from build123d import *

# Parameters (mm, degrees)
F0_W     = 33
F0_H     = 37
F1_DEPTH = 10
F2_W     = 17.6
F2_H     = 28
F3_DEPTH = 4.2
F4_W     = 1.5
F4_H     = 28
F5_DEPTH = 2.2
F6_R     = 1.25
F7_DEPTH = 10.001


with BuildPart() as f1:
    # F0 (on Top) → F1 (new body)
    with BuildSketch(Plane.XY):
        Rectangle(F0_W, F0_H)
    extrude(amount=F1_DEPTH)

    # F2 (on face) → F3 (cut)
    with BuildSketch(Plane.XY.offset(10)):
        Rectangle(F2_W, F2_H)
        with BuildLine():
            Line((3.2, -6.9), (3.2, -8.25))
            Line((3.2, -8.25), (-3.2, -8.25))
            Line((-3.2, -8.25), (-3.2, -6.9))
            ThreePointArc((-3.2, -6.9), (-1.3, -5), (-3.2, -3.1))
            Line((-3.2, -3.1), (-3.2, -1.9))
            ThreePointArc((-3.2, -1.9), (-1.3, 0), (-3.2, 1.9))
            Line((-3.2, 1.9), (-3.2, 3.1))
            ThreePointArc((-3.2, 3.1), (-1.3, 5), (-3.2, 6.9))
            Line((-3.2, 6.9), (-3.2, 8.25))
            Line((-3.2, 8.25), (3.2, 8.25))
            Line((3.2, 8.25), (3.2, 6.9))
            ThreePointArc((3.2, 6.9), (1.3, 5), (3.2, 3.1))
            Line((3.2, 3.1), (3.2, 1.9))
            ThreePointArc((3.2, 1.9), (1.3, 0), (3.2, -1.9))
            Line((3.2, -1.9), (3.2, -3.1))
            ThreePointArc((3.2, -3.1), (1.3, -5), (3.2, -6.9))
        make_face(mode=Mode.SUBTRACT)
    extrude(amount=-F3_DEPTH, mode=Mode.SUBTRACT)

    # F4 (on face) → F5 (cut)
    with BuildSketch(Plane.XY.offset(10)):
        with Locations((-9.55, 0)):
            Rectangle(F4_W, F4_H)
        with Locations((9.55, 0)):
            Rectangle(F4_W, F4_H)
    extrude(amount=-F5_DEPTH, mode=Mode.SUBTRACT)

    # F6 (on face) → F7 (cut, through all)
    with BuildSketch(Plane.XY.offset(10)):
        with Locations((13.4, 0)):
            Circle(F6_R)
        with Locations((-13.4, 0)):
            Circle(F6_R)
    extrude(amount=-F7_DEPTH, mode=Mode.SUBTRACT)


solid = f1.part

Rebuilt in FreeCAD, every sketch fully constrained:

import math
import FreeCAD as App
import Part
import Sketcher
from FreeCAD import Vector


def add_polygon(sketch, points):
    """Adds a closed chain of lines whose ends are joined by coincident constraints."""
    first, n = sketch.GeometryCount, len(points)
    for a, b in zip(points, points[1:] + points[:1]):
        sketch.addGeometry(Part.LineSegment(App.Vector(*a, 0), App.Vector(*b, 0)), False)
    for i in range(n):
        sketch.addConstraint(Sketcher.Constraint("Coincident", first + i, 2, first + (i + 1) % n, 1))

doc = App.newDocument("Part")
body = doc.addObject("PartDesign::Body", "Body")

# Sketch on XY plane
sketch1 = body.newObject("Sketcher::SketchObject", "Sketch")
sketch1.AttachmentSupport = (doc.getObject("XY_Plane"), [""])
sketch1.MapMode = "FlatFace"
add_polygon(sketch1, [(-16, 18), (-16, -18), (16, -18), (16, 18)])  # lines 0-3
sketch1.addConstraint([
    Sketcher.Constraint("Vertical", 0),
    Sketcher.Constraint("Horizontal", 1),
    Sketcher.Constraint("Vertical", 2),
    Sketcher.Constraint("Horizontal", 3),
    Sketcher.Constraint("Symmetric", 0, 2, 2, 2, -1, 1),
    Sketcher.Constraint("DistanceX", 1, 1, 1, 2, 33.0),
    Sketcher.Constraint("DistanceY", 0, 2, 0, 1, 37.0),
])
pad1 = body.newObject("PartDesign::Pad", "Pad")
pad1.Profile = sketch1
pad1.Length = 10

# Sketch on XY plane
sketch2 = body.newObject("Sketcher::SketchObject", "Sketch001")
sketch2.AttachmentSupport = (doc.getObject("XY_Plane"), [""])
sketch2.MapMode = "FlatFace"
sketch2.AttachmentOffset = App.Placement(Vector(0, 0, 10), App.Rotation())
add_polygon(sketch2, [(-8.8, 14), (-8.8, -14), (8.8, -14), (8.8, 14)])  # lines 0-3
sketch2.addGeometry(Part.ArcOfCircle(Part.Circle(Vector(3.2, -5, 0), Vector(0, 0, 1), 1.9), math.radians(90), math.radians(270)), False)  # 4
sketch2.addGeometry(Part.LineSegment(Vector(3.2, -6.9, 0), Vector(3.2, -8.2, 0)), False)  # 5
sketch2.addGeometry(Part.LineSegment(Vector(3.2, -8.2, 0), Vector(-3.2, -8.2, 0)), False)  # 6
sketch2.addGeometry(Part.LineSegment(Vector(-3.2, -8.2, 0), Vector(-3.2, -6.9, 0)), False)  # 7
sketch2.addGeometry(Part.ArcOfCircle(Part.Circle(Vector(-3.2, -5, 0), Vector(0, 0, 1), 1.9), math.radians(-90), math.radians(90)), False)  # 8
sketch2.addGeometry(Part.LineSegment(Vector(-3.2, -3.1, 0), Vector(-3.2, -1.9, 0)), False)  # 9
sketch2.addGeometry(Part.ArcOfCircle(Part.Circle(Vector(-3.2, 0, 0), Vector(0, 0, 1), 1.9), math.radians(-90), math.radians(90)), False)  # 10
sketch2.addGeometry(Part.LineSegment(Vector(-3.2, 1.9, 0), Vector(-3.2, 3.1, 0)), False)  # 11
sketch2.addGeometry(Part.ArcOfCircle(Part.Circle(Vector(-3.2, 5, 0), Vector(0, 0, 1), 1.9), math.radians(-90), math.radians(90)), False)  # 12
sketch2.addGeometry(Part.LineSegment(Vector(-3.2, 6.9, 0), Vector(-3.2, 8.2, 0)), False)  # 13
sketch2.addGeometry(Part.LineSegment(Vector(-3.2, 8.2, 0), Vector(3.2, 8.2, 0)), False)  # 14
sketch2.addGeometry(Part.LineSegment(Vector(3.2, 8.2, 0), Vector(3.2, 6.9, 0)), False)  # 15
sketch2.addGeometry(Part.ArcOfCircle(Part.Circle(Vector(3.2, 5, 0), Vector(0, 0, 1), 1.9), math.radians(90), math.radians(270)), False)  # 16
sketch2.addGeometry(Part.LineSegment(Vector(3.2, 3.1, 0), Vector(3.2, 1.9, 0)), False)  # 17
sketch2.addGeometry(Part.ArcOfCircle(Part.Circle(Vector(3.2, 0, 0), Vector(0, 0, 1), 1.9), math.radians(90), math.radians(270)), False)  # 18
sketch2.addGeometry(Part.LineSegment(Vector(3.2, -1.9, 0), Vector(3.2, -3.1, 0)), False)  # 19
sketch2.addConstraint([
    Sketcher.Constraint("Coincident", 4, 2, 5, 1),
    Sketcher.Constraint("Coincident", 5, 2, 6, 1),
    Sketcher.Constraint("Coincident", 6, 2, 7, 1),
    Sketcher.Constraint("Coincident", 7, 2, 8, 1),
    Sketcher.Constraint("Coincident", 8, 2, 9, 1),
    Sketcher.Constraint("Coincident", 9, 2, 10, 1),
    Sketcher.Constraint("Coincident", 10, 2, 11, 1),
    Sketcher.Constraint("Coincident", 11, 2, 12, 1),
    Sketcher.Constraint("Coincident", 12, 2, 13, 1),
    Sketcher.Constraint("Coincident", 13, 2, 14, 1),
    Sketcher.Constraint("Coincident", 14, 2, 15, 1),
    Sketcher.Constraint("Coincident", 15, 2, 16, 1),
    Sketcher.Constraint("Coincident", 16, 2, 17, 1),
    Sketcher.Constraint("Coincident", 17, 2, 18, 1),
    Sketcher.Constraint("Coincident", 18, 2, 19, 1),
    Sketcher.Constraint("Coincident", 19, 2, 4, 1),
    Sketcher.Constraint("Vertical", 0),
    Sketcher.Constraint("Horizontal", 1),
    Sketcher.Constraint("Vertical", 2),
    Sketcher.Constraint("Horizontal", 3),
    Sketcher.Constraint("Vertical", 5),
    Sketcher.Constraint("Horizontal", 6),
    Sketcher.Constraint("Vertical", 7),
    Sketcher.Constraint("Vertical", 9),
    Sketcher.Constraint("Vertical", 11),
    Sketcher.Constraint("Vertical", 13),
    Sketcher.Constraint("Horizontal", 14),
    Sketcher.Constraint("Vertical", 15),
    Sketcher.Constraint("Vertical", 17),
    Sketcher.Constraint("Vertical", 19),
    Sketcher.Constraint("Equal", 4, 8),
    Sketcher.Constraint("Equal", 8, 10),
    Sketcher.Constraint("Equal", 10, 12),
    Sketcher.Constraint("Equal", 12, 16),
    Sketcher.Constraint("Equal", 16, 18),
    Sketcher.Constraint("Symmetric", 4, 3, 12, 3, -1, 1),
    Sketcher.Constraint("Symmetric", 8, 3, 16, 3, -1, 1),
    Sketcher.Constraint("Symmetric", 10, 3, 18, 3, -1, 1),
    Sketcher.Constraint("Symmetric", 0, 2, 2, 2, -1, 1),
    Sketcher.Constraint("Symmetric", 5, 2, 13, 2, -1, 1),
    Sketcher.Constraint("Symmetric", 4, 3, 8, 3, -2),
    Sketcher.Constraint("Symmetric", 10, 2, 17, 2, -2),
    Sketcher.Constraint("Vertical", 8, 3, 10, 3),
    Sketcher.Constraint("Vertical", 18, 3, 4, 2),
    Sketcher.Constraint("Vertical", 12, 3, 6, 2),
    Sketcher.Constraint("Vertical", 7, 2, 8, 2),
    Sketcher.Constraint("Vertical", 9, 2, 10, 2),
    Sketcher.Constraint("Vertical", 5, 2, 14, 2),
    Sketcher.Constraint("Vertical", 17, 2, 18, 2),
    Sketcher.Constraint("Radius", 4, 1.9),
    Sketcher.Constraint("DistanceY", 0, 2, 0, 1, 28.0),
    Sketcher.Constraint("DistanceX", 1, 1, 1, 2, 17.6),
    Sketcher.Constraint("DistanceX", 6, 2, 6, 1, 6.4),
    Sketcher.Constraint("DistanceY", 9, 1, 9, 2, 1.2),
    Sketcher.Constraint("DistanceY", 5, 2, 5, 1, 1.35),
])
pocket1 = body.newObject("PartDesign::Pocket", "Pocket")
pocket1.Profile = sketch2
pocket1.Length = 4.2

# Sketch on XY plane
sketch3 = body.newObject("Sketcher::SketchObject", "Sketch002")
sketch3.AttachmentSupport = (doc.getObject("XY_Plane"), [""])
sketch3.MapMode = "FlatFace"
sketch3.AttachmentOffset = App.Placement(Vector(0, 0, 10), App.Rotation())
add_polygon(sketch3, [(-10.3, 14), (-10.3, -14), (-8.8, -14), (-8.8, 14)])  # lines 0-3
add_polygon(sketch3, [(8.8, 14), (8.8, -14), (10.3, -14), (10.3, 14)])  # lines 4-7
sketch3.addConstraint([
    Sketcher.Constraint("Vertical", 0),
    Sketcher.Constraint("Horizontal", 1),
    Sketcher.Constraint("Vertical", 2),
    Sketcher.Constraint("Horizontal", 3),
    Sketcher.Constraint("Vertical", 4),
    Sketcher.Constraint("Horizontal", 5),
    Sketcher.Constraint("Vertical", 6),
    Sketcher.Constraint("Horizontal", 7),
    Sketcher.Constraint("Symmetric", 2, 2, 4, 2, -1, 1),
    Sketcher.Constraint("Symmetric", 0, 2, 6, 2, -1, 1),
    Sketcher.Constraint("Horizontal", 1, 2, 4, 2),
    Sketcher.Constraint("DistanceY", 0, 2, 0, 1, 28.0),
    Sketcher.Constraint("DistanceX", 1, 1, 1, 2, 1.5),
    Sketcher.Constraint("DistanceX", 0, 2, -1, 1, 10.3),
])
pocket2 = body.newObject("PartDesign::Pocket", "Pocket001")
pocket2.Profile = sketch3
pocket2.Length = 2.2

# Sketch on XY plane
sketch4 = body.newObject("Sketcher::SketchObject", "Sketch003")
sketch4.AttachmentSupport = (doc.getObject("XY_Plane"), [""])
sketch4.MapMode = "FlatFace"
sketch4.AttachmentOffset = App.Placement(Vector(0, 0, 10), App.Rotation())
sketch4.addGeometry([
    Part.Circle(Vector(13.4, 0, 0), Vector(0, 0, 1), 1.2),
    Part.Circle(Vector(-13.4, 0, 0), Vector(0, 0, 1), 1.2),
], False)
sketch4.addConstraint([
    Sketcher.Constraint("Equal", 0, 1),
    Sketcher.Constraint("Symmetric", 0, 3, 1, 3, -1, 1),
    Sketcher.Constraint("PointOnObject", 0, 3, -1),
    Sketcher.Constraint("Diameter", 0, 2.5),
    Sketcher.Constraint("DistanceX", -1, 1, 0, 3, 13.4),
])
pocket3 = body.newObject("PartDesign::Pocket", "Pocket002")
pocket3.Profile = sketch4
pocket3.Type = "ThroughAll"

doc.recompute()
